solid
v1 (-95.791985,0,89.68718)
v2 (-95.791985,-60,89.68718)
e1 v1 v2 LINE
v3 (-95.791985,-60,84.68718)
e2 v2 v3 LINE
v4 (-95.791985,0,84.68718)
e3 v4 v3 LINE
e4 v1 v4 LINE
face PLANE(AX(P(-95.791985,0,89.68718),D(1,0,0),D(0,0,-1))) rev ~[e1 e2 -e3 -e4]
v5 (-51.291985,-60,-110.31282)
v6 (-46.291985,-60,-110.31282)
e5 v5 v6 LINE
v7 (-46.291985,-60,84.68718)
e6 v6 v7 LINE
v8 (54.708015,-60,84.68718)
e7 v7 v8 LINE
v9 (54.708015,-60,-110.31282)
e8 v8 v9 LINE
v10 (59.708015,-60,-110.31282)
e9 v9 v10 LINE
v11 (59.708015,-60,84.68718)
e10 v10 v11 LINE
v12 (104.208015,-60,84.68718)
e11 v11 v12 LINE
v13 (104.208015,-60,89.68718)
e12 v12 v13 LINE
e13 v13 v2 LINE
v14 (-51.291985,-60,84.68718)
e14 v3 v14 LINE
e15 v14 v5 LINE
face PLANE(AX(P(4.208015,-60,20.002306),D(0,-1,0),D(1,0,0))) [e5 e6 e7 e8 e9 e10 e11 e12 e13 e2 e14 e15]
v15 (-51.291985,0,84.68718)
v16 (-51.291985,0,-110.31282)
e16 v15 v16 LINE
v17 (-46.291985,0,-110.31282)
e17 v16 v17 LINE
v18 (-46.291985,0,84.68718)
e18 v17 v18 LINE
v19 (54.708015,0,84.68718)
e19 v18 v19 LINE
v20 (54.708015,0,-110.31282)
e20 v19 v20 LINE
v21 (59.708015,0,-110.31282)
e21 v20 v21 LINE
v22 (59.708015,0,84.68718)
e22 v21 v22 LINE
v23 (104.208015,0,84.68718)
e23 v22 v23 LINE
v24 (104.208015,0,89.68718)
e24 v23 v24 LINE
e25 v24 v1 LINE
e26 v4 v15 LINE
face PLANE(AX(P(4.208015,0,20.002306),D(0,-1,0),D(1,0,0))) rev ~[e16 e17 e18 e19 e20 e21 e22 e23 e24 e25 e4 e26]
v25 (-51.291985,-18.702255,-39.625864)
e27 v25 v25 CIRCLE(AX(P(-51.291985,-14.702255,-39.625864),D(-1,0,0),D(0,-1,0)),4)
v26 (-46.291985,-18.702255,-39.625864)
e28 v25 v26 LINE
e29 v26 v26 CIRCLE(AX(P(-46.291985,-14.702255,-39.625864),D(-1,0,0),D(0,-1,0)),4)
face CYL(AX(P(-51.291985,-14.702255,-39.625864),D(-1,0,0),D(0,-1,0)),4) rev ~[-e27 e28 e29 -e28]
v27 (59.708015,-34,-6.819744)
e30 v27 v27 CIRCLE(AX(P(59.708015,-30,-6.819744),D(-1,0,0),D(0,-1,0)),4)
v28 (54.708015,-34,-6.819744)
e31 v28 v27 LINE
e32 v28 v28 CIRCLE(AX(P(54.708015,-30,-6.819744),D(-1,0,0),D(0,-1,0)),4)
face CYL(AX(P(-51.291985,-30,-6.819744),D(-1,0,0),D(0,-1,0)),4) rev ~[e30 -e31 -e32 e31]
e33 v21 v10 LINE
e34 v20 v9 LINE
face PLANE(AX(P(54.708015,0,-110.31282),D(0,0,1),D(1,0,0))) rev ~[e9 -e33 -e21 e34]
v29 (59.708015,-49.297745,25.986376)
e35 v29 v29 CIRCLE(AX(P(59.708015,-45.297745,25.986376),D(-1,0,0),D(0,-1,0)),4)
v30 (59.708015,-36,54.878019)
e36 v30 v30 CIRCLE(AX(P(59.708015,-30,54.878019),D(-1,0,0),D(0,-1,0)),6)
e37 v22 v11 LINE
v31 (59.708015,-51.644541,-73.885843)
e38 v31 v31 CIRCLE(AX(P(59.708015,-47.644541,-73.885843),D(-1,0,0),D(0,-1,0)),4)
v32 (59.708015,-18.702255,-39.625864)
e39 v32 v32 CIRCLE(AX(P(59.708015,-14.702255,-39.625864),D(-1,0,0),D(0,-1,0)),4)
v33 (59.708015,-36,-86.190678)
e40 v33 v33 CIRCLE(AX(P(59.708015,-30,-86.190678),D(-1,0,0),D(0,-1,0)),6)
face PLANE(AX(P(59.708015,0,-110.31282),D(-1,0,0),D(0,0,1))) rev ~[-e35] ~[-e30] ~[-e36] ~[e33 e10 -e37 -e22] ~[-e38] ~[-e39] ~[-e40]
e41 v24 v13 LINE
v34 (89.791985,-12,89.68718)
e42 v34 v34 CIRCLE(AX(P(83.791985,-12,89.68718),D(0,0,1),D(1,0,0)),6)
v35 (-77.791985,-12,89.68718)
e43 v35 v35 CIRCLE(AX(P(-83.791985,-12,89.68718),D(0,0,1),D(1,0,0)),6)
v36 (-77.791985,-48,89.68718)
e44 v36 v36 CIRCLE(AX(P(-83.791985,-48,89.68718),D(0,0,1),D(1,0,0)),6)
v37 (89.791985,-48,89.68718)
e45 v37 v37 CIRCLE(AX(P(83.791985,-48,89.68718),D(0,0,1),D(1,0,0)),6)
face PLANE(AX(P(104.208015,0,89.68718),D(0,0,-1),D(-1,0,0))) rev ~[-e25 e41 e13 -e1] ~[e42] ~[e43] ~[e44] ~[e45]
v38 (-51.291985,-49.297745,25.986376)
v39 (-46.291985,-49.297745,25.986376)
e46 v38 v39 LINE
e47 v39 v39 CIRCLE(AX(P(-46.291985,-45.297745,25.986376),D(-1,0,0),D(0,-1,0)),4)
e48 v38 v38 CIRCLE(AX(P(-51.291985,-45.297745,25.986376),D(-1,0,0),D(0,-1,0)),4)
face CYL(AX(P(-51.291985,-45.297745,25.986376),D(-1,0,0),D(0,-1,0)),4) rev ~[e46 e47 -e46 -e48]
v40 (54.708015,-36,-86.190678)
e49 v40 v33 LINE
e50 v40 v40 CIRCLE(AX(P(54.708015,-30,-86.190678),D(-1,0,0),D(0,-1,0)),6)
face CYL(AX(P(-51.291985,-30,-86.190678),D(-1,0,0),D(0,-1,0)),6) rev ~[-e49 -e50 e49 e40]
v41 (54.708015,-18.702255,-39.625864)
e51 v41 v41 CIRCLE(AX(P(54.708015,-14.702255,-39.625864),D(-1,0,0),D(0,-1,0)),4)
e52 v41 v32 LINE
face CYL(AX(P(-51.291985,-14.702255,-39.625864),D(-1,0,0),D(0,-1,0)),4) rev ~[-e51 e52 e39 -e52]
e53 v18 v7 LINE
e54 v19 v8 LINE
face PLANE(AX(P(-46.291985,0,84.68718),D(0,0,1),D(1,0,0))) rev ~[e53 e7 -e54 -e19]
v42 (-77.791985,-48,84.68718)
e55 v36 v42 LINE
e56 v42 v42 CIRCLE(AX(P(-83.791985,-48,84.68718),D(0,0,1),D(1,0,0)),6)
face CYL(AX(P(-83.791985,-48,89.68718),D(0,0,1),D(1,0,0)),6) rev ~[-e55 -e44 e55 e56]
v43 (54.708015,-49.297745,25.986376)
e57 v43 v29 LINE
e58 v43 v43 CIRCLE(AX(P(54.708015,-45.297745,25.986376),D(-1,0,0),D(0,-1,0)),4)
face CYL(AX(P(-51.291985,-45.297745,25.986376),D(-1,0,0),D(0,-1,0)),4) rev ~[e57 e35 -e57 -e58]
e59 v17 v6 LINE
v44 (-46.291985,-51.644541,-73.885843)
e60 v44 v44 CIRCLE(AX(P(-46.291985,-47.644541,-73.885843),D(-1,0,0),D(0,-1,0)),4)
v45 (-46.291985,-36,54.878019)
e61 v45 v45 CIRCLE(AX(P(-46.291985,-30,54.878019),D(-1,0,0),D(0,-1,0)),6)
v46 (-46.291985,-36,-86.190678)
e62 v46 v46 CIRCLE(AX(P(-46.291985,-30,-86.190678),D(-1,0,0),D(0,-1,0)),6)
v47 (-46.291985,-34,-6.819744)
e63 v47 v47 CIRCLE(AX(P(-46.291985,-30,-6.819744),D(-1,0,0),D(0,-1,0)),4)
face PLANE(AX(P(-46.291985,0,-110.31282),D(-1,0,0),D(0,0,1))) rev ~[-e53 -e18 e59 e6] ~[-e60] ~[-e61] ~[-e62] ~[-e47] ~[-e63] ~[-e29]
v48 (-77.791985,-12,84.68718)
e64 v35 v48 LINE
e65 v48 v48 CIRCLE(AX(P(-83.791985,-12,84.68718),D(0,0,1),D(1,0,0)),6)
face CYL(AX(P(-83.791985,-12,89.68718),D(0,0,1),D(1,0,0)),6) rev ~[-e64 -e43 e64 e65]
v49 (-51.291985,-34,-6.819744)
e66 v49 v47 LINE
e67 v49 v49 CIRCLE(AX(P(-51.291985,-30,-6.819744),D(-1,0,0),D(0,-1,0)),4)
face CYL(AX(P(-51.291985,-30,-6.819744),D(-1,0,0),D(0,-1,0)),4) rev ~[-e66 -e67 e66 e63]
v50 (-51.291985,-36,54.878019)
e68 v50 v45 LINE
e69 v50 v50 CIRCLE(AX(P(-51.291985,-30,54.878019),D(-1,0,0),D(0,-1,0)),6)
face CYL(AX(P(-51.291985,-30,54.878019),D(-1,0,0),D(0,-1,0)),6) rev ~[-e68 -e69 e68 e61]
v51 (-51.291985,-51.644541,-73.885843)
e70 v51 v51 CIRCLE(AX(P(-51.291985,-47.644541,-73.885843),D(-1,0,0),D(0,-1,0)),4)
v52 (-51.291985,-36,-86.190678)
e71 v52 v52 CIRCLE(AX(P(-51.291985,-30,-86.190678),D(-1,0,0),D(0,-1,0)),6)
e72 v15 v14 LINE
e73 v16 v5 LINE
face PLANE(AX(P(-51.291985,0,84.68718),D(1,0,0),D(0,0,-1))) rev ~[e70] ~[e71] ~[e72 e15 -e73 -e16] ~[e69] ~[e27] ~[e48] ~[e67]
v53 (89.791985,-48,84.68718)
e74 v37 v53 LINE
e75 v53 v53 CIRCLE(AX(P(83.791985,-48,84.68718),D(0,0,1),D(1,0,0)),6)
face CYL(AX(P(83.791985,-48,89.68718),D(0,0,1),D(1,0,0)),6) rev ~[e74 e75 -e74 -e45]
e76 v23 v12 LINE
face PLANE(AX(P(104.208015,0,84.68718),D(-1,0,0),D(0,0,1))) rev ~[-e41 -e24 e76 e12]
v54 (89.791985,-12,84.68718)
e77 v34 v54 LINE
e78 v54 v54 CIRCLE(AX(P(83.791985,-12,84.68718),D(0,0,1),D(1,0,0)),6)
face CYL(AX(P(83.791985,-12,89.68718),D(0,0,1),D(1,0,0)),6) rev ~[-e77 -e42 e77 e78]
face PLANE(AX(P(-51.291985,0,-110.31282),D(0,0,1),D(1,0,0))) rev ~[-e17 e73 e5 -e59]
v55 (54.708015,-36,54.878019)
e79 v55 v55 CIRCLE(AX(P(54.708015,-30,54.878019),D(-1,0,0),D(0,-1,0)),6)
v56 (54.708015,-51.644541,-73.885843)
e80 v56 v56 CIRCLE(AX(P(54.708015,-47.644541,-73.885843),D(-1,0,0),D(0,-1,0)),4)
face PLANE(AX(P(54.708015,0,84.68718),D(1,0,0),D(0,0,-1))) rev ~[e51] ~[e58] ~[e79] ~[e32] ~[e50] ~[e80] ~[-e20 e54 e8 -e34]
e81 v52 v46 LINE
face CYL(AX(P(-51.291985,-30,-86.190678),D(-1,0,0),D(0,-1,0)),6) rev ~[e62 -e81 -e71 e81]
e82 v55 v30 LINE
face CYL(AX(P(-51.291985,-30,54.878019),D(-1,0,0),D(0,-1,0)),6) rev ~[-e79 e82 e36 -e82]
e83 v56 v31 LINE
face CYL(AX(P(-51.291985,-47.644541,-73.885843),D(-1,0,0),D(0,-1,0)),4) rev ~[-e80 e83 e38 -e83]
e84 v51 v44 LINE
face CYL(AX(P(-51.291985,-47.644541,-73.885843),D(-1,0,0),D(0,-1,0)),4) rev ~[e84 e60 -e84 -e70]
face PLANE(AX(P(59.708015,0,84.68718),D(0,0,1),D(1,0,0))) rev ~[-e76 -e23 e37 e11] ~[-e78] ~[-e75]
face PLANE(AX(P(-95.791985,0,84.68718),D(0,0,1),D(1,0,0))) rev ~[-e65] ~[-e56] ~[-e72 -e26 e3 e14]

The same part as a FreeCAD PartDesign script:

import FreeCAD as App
import Part
import Sketcher
from FreeCAD import Vector

doc = App.newDocument("Part")
body = doc.addObject("PartDesign::Body", "Body")

sketch1 = doc.addObject("Sketcher::SketchObject", "Sketch")
body.addObject(sketch1)
sketch1.AttachmentSupport = (doc.XZ_Plane, [""])
sketch1.MapMode = "FlatFace"
sketch1.addGeometry(Part.LineSegment(Vector(104, 90, 0), Vector(-96, 90, 0)), False)
sketch1.addGeometry(Part.LineSegment(Vector(-96, 90, 0), Vector(-96, 85, 0)), False)
sketch1.addGeometry(Part.LineSegment(Vector(-96, 85, 0), Vector(-51, 85, 0)), False)
sketch1.addGeometry(Part.LineSegment(Vector(-51, 85, 0), Vector(-51, -110, 0)), False)
sketch1.addGeometry(Part.LineSegment(Vector(-51, -110, 0), Vector(-46, -110, 0)), False)
sketch1.addGeometry(Part.LineSegment(Vector(-46, -110, 0), Vector(-46, 85, 0)), False)
sketch1.addGeometry(Part.LineSegment(Vector(-46, 85, 0), Vector(55, 85, 0)), False)
sketch1.addGeometry(Part.LineSegment(Vector(55, 85, 0), Vector(55, -110, 0)), False)
sketch1.addGeometry(Part.LineSegment(Vector(55, -110, 0), Vector(60, -110, 0)), False)
sketch1.addGeometry(Part.LineSegment(Vector(60, -110, 0), Vector(60, 85, 0)), False)
sketch1.addGeometry(Part.LineSegment(Vector(60, 85, 0), Vector(104, 85, 0)), False)
sketch1.addGeometry(Part.LineSegment(Vector(104, 85, 0), Vector(104, 90, 0)), False)
sketch1.addConstraint(Sketcher.Constraint("Coincident", 0, 2, 1, 1))
sketch1.addConstraint(Sketcher.Constraint("Coincident", 1, 2, 2, 1))
sketch1.addConstraint(Sketcher.Constraint("Coincident", 2, 2, 3, 1))
sketch1.addConstraint(Sketcher.Constraint("Coincident", 3, 2, 4, 1))
sketch1.addConstraint(Sketcher.Constraint("Coincident", 4, 2, 5, 1))
sketch1.addConstraint(Sketcher.Constraint("Coincident", 5, 2, 6, 1))
sketch1.addConstraint(Sketcher.Constraint("Coincident", 6, 2, 7, 1))
sketch1.addConstraint(Sketcher.Constraint("Coincident", 7, 2, 8, 1))
sketch1.addConstraint(Sketcher.Constraint("Coincident", 8, 2, 9, 1))
sketch1.addConstraint(Sketcher.Constraint("Coincident", 9, 2, 10, 1))
sketch1.addConstraint(Sketcher.Constraint("Coincident", 10, 2, 11, 1))
sketch1.addConstraint(Sketcher.Constraint("Coincident", 11, 2, 0, 1))
sketch1.addConstraint(Sketcher.Constraint("Horizontal", 0))
sketch1.addConstraint(Sketcher.Constraint("Vertical", 1))
sketch1.addConstraint(Sketcher.Constraint("Horizontal", 2))
sketch1.addConstraint(Sketcher.Constraint("Vertical", 3))
sketch1.addConstraint(Sketcher.Constraint("Horizontal", 4))
sketch1.addConstraint(Sketcher.Constraint("Vertical", 5))
sketch1.addConstraint(Sketcher.Constraint("Horizontal", 6))
sketch1.addConstraint(Sketcher.Constraint("Vertical", 7))
sketch1.addConstraint(Sketcher.Constraint("Horizontal", 8))
sketch1.addConstraint(Sketcher.Constraint("Vertical", 9))
sketch1.addConstraint(Sketcher.Constraint("Horizontal", 10))
sketch1.addConstraint(Sketcher.Constraint("Vertical", 11))
sketch1.addConstraint(Sketcher.Constraint("Horizontal", 2, 2, 5, 2))
sketch1.addConstraint(Sketcher.Constraint("Horizontal", 4, 2, 7, 2))
sketch1.addConstraint(Sketcher.Constraint("Horizontal", 6, 2, 9, 2))
sketch1.addConstraint(Sketcher.Constraint("Equal", 4, 8))
sketch1.addConstraint(Sketcher.Constraint("Equal", 2, 10))
sketch1.addConstraint(Sketcher.Constraint("Equal", 8, 1))
sketch1.addConstraint(Sketcher.Constraint("DistanceX", 0, 2, 0, 1, 200.0))
sketch1.addConstraint(Sketcher.Constraint("DistanceX", 4, 1, 4, 2, 5.0))
sketch1.addConstraint(Sketcher.Constraint("DistanceX", 6, 1, 6, 2, 101.0))
sketch1.addConstraint(Sketcher.Constraint("DistanceY", 3, 2, 3, 1, 195.0))
sketch1.addConstraint(Sketcher.Constraint("DistanceY", -1, 1, 0, 2, 89.68718))
sketch1.addConstraint(Sketcher.Constraint("DistanceX", 0, 2, -1, 1, 95.791985))
pad1 = doc.addObject("PartDesign::Pad", "Pad")
body.addObject(pad1)
pad1.Profile = sketch1
pad1.Length = 60

sketch2 = doc.addObject("Sketcher::SketchObject", "Sketch001")
body.addObject(sketch2)
sketch2.AttachmentSupport = (doc.XY_Plane, [""])
sketch2.MapMode = "FlatFace"
sketch2.AttachmentOffset = App.Placement(Vector(0, 0, 89.68718), App.Rotation())
sketch2.addGeometry(Part.Circle(Vector(-84, -12, 0), Vector(0, 0, 1), 6), False)
sketch2.addGeometry(Part.Circle(Vector(84, -12, 0), Vector(0, 0, 1), 6), False)
sketch2.addGeometry(Part.Circle(Vector(-84, -48, 0), Vector(0, 0, 1), 6), False)
sketch2.addGeometry(Part.Circle(Vector(84, -48, 0), Vector(0, 0, 1), 6), False)
sketch2.addConstraint(Sketcher.Constraint("Equal", 0, 1))
sketch2.addConstraint(Sketcher.Constraint("Equal", 1, 2))
sketch2.addConstraint(Sketcher.Constraint("Equal", 2, 3))
sketch2.addConstraint(Sketcher.Constraint("Symmetric", 0, 3, 1, 3, -2))
sketch2.addConstraint(Sketcher.Constraint("Symmetric", 2, 3, 3, 3, -2))
sketch2.addConstraint(Sketcher.Constraint("Vertical", 0, 3, 2, 3))
sketch2.addConstraint(Sketcher.Constraint("Diameter", 0, 12.0))
sketch2.addConstraint(Sketcher.Constraint("DistanceY", 0, 3, -1, 1, 12.0))
sketch2.addConstraint(Sketcher.Constraint("DistanceY", 2, 3, -1, 1, 48.0))
sketch2.addConstraint(Sketcher.Constraint("DistanceX", 0, 3, 1, 3, 167.58397))
pocket1 = doc.addObject("PartDesign::Pocket", "Pocket")
body.addObject(pocket1)
pocket1.Profile = sketch2
pocket1.Length = 25

sketch3 = doc.addObject("Sketcher::SketchObject", "Sketch002")
body.addObject(sketch3)
sketch3.AttachmentSupport = (doc.YZ_Plane, [""])
sketch3.MapMode = "FlatFace"
sketch3.AttachmentOffset = App.Placement(Vector(0, 0, -51.291985), App.Rotation())
sketch3.addGeometry(Part.Circle(Vector(-30, 54.9, 0), Vector(0, 0, 1), 6), False)
sketch3.addGeometry(Part.Circle(Vector(-30, -86.2, 0), Vector(0, 0, 1), 6), False)
sketch3.addGeometry(Part.Circle(Vector(-30, -6.8, 0), Vector(0, 0, 1), 4), False)
sketch3.addGeometry(Part.Circle(Vector(-14.7, -39.6, 0), Vector(0, 0, 1), 4), False)
sketch3.addGeometry(Part.Circle(Vector(-45.3, 26, 0), Vector(0, 0, 1), 4), False)
sketch3.addGeometry(Part.Circle(Vector(-47.6, -73.9, 0), Vector(0, 0, 1), 4), False)
sketch3.addConstraint(Sketcher.Constraint("Equal", 0, 1))
sketch3.addConstraint(Sketcher.Constraint("Equal", 2, 3))
sketch3.addConstraint(Sketcher.Constraint("Equal", 3, 4))
sketch3.addConstraint(Sketcher.Constraint("Equal", 4, 5))
sketch3.addConstraint(Sketcher.Constraint("Vertical", 0, 3, 1, 3))
sketch3.addConstraint(Sketcher.Constraint("Vertical", 1, 3, 2, 3))
sketch3.addConstraint(Sketcher.Constraint("Diameter", 0, 12.0))
sketch3.addConstraint(Sketcher.Constraint("Diameter", 2, 8.0))
sketch3.addConstraint(Sketcher.Constraint("DistanceX", 0, 3, -1, 1, 30.0))
sketch3.addConstraint(Sketcher.Constraint("DistanceY", 5, 3, 2, 3, 67.066099))
sketch3.addConstraint(Sketcher.Constraint("DistanceY", -1, 1, 0, 3, 54.878019))
sketch3.addConstraint(Sketcher.Constraint("DistanceY", 1, 3, -1, 1, 86.190678))
sketch3.addConstraint(Sketcher.Constraint("DistanceX", 5, 3, -1, 1, 47.644541))
sketch3.addConstraint(Sketcher.Constraint("DistanceY", 3, 3, 2, 3, 32.80612))
sketch3.addConstraint(Sketcher.Constraint("DistanceY", 2, 3, 4, 3, 32.80612))
sketch3.addConstraint(Sketcher.Constraint("DistanceX", 4, 3, 3, 3, 30.59549))
sketch3.addConstraint(Sketcher.Constraint("DistanceY", 5, 3, 0, 3, 128.763862))
sketch3.addConstraint(Sketcher.Constraint("DistanceX", 3, 3, -1, 1, 14.702255))
pocket2 = doc.addObject("PartDesign::Pocket", "Pocket001")
body.addObject(pocket2)
pocket2.Profile = sketch3
pocket2.Type = "ThroughAll"
pocket2.Reversed = True

doc.recompute()
